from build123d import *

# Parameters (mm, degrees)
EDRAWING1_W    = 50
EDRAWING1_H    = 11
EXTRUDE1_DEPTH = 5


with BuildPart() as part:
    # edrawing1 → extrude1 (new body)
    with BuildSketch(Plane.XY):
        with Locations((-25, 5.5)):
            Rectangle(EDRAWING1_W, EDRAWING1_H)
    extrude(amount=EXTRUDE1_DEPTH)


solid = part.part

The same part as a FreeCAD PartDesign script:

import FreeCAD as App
import Part
import Sketcher
from FreeCAD import Vector

doc = App.newDocument("Part")
body = doc.addObject("PartDesign::Body", "Body")

# Sketch on XY plane
sketch1 = doc.addObject("Sketcher::SketchObject", "Sketch")
body.addObject(sketch1)
sketch1.AttachmentSupport = (doc.XY_Plane, [""])
sketch1.MapMode = "FlatFace"
sketch1.addGeometry([
    Part.LineSegment(Vector(-50, 11, 0), Vector(-50, 0, 0)),
    Part.LineSegment(Vector(-50, 0, 0), Vector(0, 0, 0)),
    Part.LineSegment(Vector(0, 0, 0), Vector(0, 11, 0)),
    Part.LineSegment(Vector(0, 11, 0), Vector(-50, 11, 0)),
], False)
sketch1.addConstraint([
    Sketcher.Constraint("Coincident", 0, 2, 1, 1),
    Sketcher.Constraint("Coincident", 1, 2, 2, 1),
    Sketcher.Constraint("Coincident", 2, 2, 3, 1),
    Sketcher.Constraint("Coincident", 3, 2, 0, 1),
    Sketcher.Constraint("Vertical", 0),
    Sketcher.Constraint("Horizontal", 1),
    Sketcher.Constraint("Vertical", 2),
    Sketcher.Constraint("Horizontal", 3),
    Sketcher.Constraint("Coincident", 1, 2, -1, 1),
    Sketcher.Constraint("DistanceX", 1, 1, 1, 2, 50.0),
    Sketcher.Constraint("DistanceY", 0, 2, 0, 1, 11.0),
])
pad1 = doc.addObject("PartDesign::Pad", "Pad")
body.addObject(pad1)
pad1.Profile = sketch1
pad1.Length = 5

doc.recompute()
